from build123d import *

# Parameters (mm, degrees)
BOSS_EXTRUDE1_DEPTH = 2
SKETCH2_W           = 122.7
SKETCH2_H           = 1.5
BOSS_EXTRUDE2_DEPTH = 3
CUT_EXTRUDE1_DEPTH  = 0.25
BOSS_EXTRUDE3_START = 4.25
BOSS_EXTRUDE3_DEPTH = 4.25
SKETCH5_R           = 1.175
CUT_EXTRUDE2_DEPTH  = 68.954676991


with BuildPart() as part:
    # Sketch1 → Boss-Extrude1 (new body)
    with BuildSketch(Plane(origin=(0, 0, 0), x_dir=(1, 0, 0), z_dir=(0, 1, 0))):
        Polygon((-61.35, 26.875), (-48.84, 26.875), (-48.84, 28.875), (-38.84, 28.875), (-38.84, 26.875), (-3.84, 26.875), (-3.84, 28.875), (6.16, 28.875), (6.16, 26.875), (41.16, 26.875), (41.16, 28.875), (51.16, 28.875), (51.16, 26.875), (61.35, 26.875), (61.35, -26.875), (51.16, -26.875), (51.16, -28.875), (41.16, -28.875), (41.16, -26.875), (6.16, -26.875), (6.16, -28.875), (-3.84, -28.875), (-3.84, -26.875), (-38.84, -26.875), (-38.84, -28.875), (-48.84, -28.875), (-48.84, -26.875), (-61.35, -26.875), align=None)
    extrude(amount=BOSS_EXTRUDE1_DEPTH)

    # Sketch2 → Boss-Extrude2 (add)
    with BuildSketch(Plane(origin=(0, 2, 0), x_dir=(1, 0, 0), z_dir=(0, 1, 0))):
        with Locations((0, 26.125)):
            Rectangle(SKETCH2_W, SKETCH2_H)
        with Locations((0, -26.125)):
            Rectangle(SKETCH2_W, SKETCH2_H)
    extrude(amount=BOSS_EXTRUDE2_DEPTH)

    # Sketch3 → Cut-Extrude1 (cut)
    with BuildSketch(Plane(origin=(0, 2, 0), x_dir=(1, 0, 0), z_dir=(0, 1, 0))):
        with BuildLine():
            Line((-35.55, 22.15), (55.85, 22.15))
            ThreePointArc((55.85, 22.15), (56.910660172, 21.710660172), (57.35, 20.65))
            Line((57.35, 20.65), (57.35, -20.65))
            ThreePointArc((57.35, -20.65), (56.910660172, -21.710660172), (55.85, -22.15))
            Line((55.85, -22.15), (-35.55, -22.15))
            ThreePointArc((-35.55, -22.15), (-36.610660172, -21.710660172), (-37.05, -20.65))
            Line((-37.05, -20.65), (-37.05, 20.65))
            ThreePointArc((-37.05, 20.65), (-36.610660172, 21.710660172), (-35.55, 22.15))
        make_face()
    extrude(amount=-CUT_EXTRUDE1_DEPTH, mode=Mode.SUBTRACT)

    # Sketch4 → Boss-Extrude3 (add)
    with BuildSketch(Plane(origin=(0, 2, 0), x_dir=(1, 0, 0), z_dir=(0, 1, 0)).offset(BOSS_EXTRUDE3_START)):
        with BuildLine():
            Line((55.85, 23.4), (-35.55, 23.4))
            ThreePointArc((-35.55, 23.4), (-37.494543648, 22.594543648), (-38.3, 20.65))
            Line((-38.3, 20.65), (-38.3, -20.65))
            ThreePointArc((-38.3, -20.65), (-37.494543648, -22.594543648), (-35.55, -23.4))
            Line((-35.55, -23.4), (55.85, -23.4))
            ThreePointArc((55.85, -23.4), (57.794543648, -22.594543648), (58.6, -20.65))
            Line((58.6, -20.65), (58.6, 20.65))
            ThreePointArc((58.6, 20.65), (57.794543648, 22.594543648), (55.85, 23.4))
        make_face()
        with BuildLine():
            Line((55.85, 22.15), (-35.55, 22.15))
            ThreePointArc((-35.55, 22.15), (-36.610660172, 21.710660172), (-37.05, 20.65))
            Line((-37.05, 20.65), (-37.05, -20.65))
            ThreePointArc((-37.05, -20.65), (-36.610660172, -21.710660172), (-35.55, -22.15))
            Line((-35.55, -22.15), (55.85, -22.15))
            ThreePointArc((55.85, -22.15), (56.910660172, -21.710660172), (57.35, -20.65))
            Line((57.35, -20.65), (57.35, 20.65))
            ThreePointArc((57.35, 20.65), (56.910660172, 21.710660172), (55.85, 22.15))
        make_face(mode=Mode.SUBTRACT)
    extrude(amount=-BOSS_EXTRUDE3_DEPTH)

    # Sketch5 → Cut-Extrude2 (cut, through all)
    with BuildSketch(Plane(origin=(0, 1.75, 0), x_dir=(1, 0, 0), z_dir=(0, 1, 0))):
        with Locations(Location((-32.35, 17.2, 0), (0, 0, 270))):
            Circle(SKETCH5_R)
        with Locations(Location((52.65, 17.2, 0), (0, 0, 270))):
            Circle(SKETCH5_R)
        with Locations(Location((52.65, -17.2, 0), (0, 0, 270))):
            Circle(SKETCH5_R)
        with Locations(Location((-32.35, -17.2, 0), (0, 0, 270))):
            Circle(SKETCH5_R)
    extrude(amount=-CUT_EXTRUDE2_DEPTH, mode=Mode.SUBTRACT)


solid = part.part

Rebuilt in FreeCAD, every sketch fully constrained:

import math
import FreeCAD as App
import Part
import Sketcher


def add_polygon(sketch, points):
    """Adds a closed chain of lines whose ends are joined by coincident constraints."""
    first, n = sketch.GeometryCount, len(points)
    for a, b in zip(points, points[1:] + points[:1]):
        sketch.addGeometry(Part.LineSegment(App.Vector(*a, 0), App.Vector(*b, 0)), False)
    for i in range(n):
        sketch.addConstraint(Sketcher.Constraint("Coincident", first + i, 2, first + (i + 1) % n, 1))

doc = App.newDocument("Part")
params = doc.addObject("Spreadsheet::Sheet", "Params")
for row, (alias, value) in enumerate([
    ("sketch1_width", "10 mm"),
    ("sketch1_width2", "35 mm"),
    ("sketch1_height", "2 mm"),
    ("sketch1_width3", "12.51 mm"),
    ("sketch1_width4", "10.19 mm"),
    ("pad1_length", "2 mm"),
    ("sketch2_width", "122.7 mm"),
    ("sketch2_height", "1.5 mm"),
    ("pad2_length", "3 mm"),
    ("sketch3_radius", "1.5 mm"),
    ("sketch3_width", "91.4 mm"),
    ("sketch3_height", "41.3 mm"),
    ("pocket1_length", "0.25 mm"),
    ("sketch4_radius", "1.5 mm"),
    ("sketch4_radius2", "2.75 mm"),
    ("sketch4_width", "91.4 mm"),
    ("sketch4_height", "41.3 mm"),
    ("pad3_length", "4.25 mm"),
    ("sketch5_diameter", "2.35 mm"),
], start=1):
    params.set(f"A{row}", alias)
    params.set(f"B{row}", "=" + value)
    params.setAlias(f"B{row}", alias)

body = doc.addObject("PartDesign::Body", "Body")

# Sketch on XZ plane
sketch1 = doc.addObject("Sketcher::SketchObject", "Sketch")
body.addObject(sketch1)
sketch1.AttachmentSupport = (doc.XZ_Plane, [""])
sketch1.MapMode = "FlatFace"
add_polygon(sketch1, [(-48.84, -26.875), (-61.35, -26.875), (-61.35, 26.875), (-48.84, 26.875), (-48.84, 28.875), (-38.84, 28.875), (-38.84, 26.875), (-3.84, 26.875), (-3.84, 28.875), (6.16, 28.875), (6.16, 26.875), (41.16, 26.875), (41.16, 28.875), (51.16, 28.875), (51.16, 26.875), (61.35, 26.875), (61.35, -26.875), (51.16, -26.875), (51.16, -28.875), (41.16, -28.875), (41.16, -26.875), (6.16, -26.875), (6.16, -28.875), (-3.84, -28.875), (-3.84, -26.875), (-38.84, -26.875), (-38.84, -28.875), (-48.84, -28.875)])  # lines 0-27
sketch1.addConstraint([
    Sketcher.Constraint("Horizontal", 0),
    Sketcher.Constraint("Vertical", 1),
    Sketcher.Constraint("Horizontal", 2),
    Sketcher.Constraint("Vertical", 3),
    Sketcher.Constraint("Horizontal", 4),
    Sketcher.Constraint("Vertical", 5),
    Sketcher.Constraint("Horizontal", 6),
    Sketcher.Constraint("Vertical", 7),
    Sketcher.Constraint("Horizontal", 8),
    Sketcher.Constraint("Vertical", 9),
    Sketcher.Constraint("Horizontal", 10),
    Sketcher.Constraint("Vertical", 11),
    Sketcher.Constraint("Horizontal", 12),
    Sketcher.Constraint("Vertical", 13),
    Sketcher.Constraint("Horizontal", 14),
    Sketcher.Constraint("Vertical", 15),
    Sketcher.Constraint("Horizontal", 16),
    Sketcher.Constraint("Vertical", 17),
    Sketcher.Constraint("Horizontal", 18),
    Sketcher.Constraint("Vertical", 19),
    Sketcher.Constraint("Horizontal", 20),
    Sketcher.Constraint("Vertical", 21),
    Sketcher.Constraint("Horizontal", 22),
    Sketcher.Constraint("Vertical", 23),
    Sketcher.Constraint("Horizontal", 24),
    Sketcher.Constraint("Vertical", 25),
    Sketcher.Constraint("Horizontal", 26),
    Sketcher.Constraint("Vertical", 27),
    Sketcher.Constraint("Symmetric", 0, 2, 14, 2, -1, 1),
    Sketcher.Constraint("Symmetric", 13, 2, 16, 2, -1),
    Sketcher.Constraint("Symmetric", 11, 2, 18, 2, -1),
    Sketcher.Constraint("Symmetric", 9, 2, 20, 2, -1),
    Sketcher.Constraint("Symmetric", 7, 2, 22, 2, -1),
    Sketcher.Constraint("Symmetric", 5, 2, 24, 2, -1),
    Sketcher.Constraint("Symmetric", 3, 2, 26, 2, -1),
    Sketcher.Constraint("Horizontal", 2, 2, 5, 2),
    Sketcher.Constraint("Horizontal", 4, 2, 7, 2),
    Sketcher.Constraint("Horizontal", 6, 2, 9, 2),
    Sketcher.Constraint("Horizontal", 8, 2, 11, 2),
    Sketcher.Constraint("Horizontal", 10, 2, 13, 2),
    Sketcher.Constraint("Equal", 4, 8),
    Sketcher.Constraint("Equal", 6, 10),
    Sketcher.Constraint("Equal", 8, 12),
    Sketcher.Constraint("DistanceX", 4, 1, 4, 2, 10.0),
    Sketcher.Constraint("DistanceX", 6, 1, 6, 2, 35.0),
    Sketcher.Constraint("DistanceY", 3, 1, 3, 2, 2.0),
    Sketcher.Constraint("DistanceX", 0, 2, 0, 1, 12.51),
    Sketcher.Constraint("DistanceX", 14, 1, 14, 2, 10.19),
    Sketcher.Constraint("DistanceY", 1, 1, 1, 2, 53.75),
])
sketch1.setExpression("Constraints[71]", "Params.sketch1_width")
sketch1.setExpression("Constraints[72]", "Params.sketch1_width2")
sketch1.setExpression("Constraints[73]", "Params.sketch1_height")
sketch1.setExpression("Constraints[74]", "Params.sketch1_width3")
sketch1.setExpression("Constraints[75]", "Params.sketch1_width4")
pad1 = doc.addObject("PartDesign::Pad", "Pad")
body.addObject(pad1)
pad1.Profile = sketch1
pad1.setExpression("Length", "Params.pad1_length")
pad1.Reversed = True

# Sketch on XZ plane
sketch2 = doc.addObject("Sketcher::SketchObject", "Sketch001")
body.addObject(sketch2)
sketch2.AttachmentSupport = (doc.XZ_Plane, [""])
sketch2.MapMode = "FlatFace"
sketch2.AttachmentOffset = App.Placement(App.Vector(0, 0, -2), App.Rotation())
add_polygon(sketch2, [(-61.35, -26.875), (-61.35, -25.375), (61.35, -25.375), (61.35, -26.875)])  # lines 0-3
add_polygon(sketch2, [(-61.35, 25.375), (-61.35, 26.875), (61.35, 26.875), (61.35, 25.375)])  # lines 4-7
sketch2.addConstraint([
    Sketcher.Constraint("Vertical", 0),
    Sketcher.Constraint("Horizontal", 1),
    Sketcher.Constraint("Vertical", 2),
    Sketcher.Constraint("Horizontal", 3),
    Sketcher.Constraint("Vertical", 4),
    Sketcher.Constraint("Horizontal", 5),
    Sketcher.Constraint("Vertical", 6),
    Sketcher.Constraint("Horizontal", 7),
    Sketcher.Constraint("Symmetric", 2, 2, 4, 2, -1, 1),
    Sketcher.Constraint("Symmetric", 0, 2, 6, 2, -1, 1),
    Sketcher.Constraint("Vertical", 3, 2, 4, 2),
    Sketcher.Constraint("DistanceX", 1, 1, 1, 2, 122.7),
    Sketcher.Constraint("DistanceY", 0, 1, 0, 2, 1.5),
    Sketcher.Constraint("DistanceY", 0, 2, 4, 2, 52.25),
])
sketch2.setExpression("Constraints[19]", "Params.sketch2_width")
sketch2.setExpression("Constraints[20]", "Params.sketch2_height")
pad2 = doc.addObject("PartDesign::Pad", "Pad001")
body.addObject(pad2)
pad2.Profile = sketch2
pad2.setExpression("Length", "Params.pad2_length")
pad2.Reversed = True

# Sketch on XZ plane
sketch3 = doc.addObject("Sketcher::SketchObject", "Sketch002")
body.addObject(sketch3)
sketch3.AttachmentSupport = (doc.XZ_Plane, [""])
sketch3.MapMode = "FlatFace"
sketch3.AttachmentOffset = App.Placement(App.Vector(0, 0, -2), App.Rotation())
sketch3.addGeometry([
    Part.LineSegment(App.Vector(55.85, -22.15, 0), App.Vector(-35.55, -22.15, 0)),  # 0
    Part.ArcOfCircle(Part.Circle(App.Vector(-35.55, -20.65, 0), App.Vector(0, 0, 1), 1.5), math.radians(180), math.radians(270)),  # 1
    Part.LineSegment(App.Vector(-37.05, -20.65, 0), App.Vector(-37.05, 20.65, 0)),  # 2
    Part.ArcOfCircle(Part.Circle(App.Vector(-35.55, 20.65, 0), App.Vector(0, 0, 1), 1.5), math.radians(90), math.radians(180)),  # 3
    Part.LineSegment(App.Vector(-35.55, 22.15, 0), App.Vector(55.85, 22.15, 0)),  # 4
    Part.ArcOfCircle(Part.Circle(App.Vector(55.85, 20.65, 0), App.Vector(0, 0, 1), 1.5), math.radians(0), math.radians(90)),  # 5
    Part.LineSegment(App.Vector(57.35, 20.65, 0), App.Vector(57.35, -20.65, 0)),  # 6
    Part.ArcOfCircle(Part.Circle(App.Vector(55.85, -20.65, 0), App.Vector(0, 0, 1), 1.5), math.radians(-90), math.radians(0)),  # 7
], False)
sketch3.addConstraint([
    Sketcher.Constraint("Tangent", 0, 2, 1, 2),
    Sketcher.Constraint("Tangent", 1, 1, 2, 1),
    Sketcher.Constraint("Tangent", 2, 2, 3, 2),
    Sketcher.Constraint("Tangent", 3, 1, 4, 1),
    Sketcher.Constraint("Tangent", 4, 2, 5, 2),
    Sketcher.Constraint("Tangent", 5, 1, 6, 1),
    Sketcher.Constraint("Tangent", 6, 2, 7, 2),
    Sketcher.Constraint("Tangent", 7, 1, 0, 1),
    Sketcher.Constraint("Horizontal", 0),
    Sketcher.Constraint("Vertical", 2),
    Sketcher.Constraint("Horizontal", 4),
    Sketcher.Constraint("Vertical", 6),
    Sketcher.Constraint("Equal", 1, 3),
    Sketcher.Constraint("Equal", 3, 5),
    Sketcher.Constraint("Equal", 5, 7),
    Sketcher.Constraint("Radius", 1, 1.5),
    Sketcher.Constraint("DistanceX", 0, 2, 0, 1, 91.4),
    Sketcher.Constraint("DistanceY", 2, 1, 2, 2, 41.3),
    Sketcher.Constraint("DistanceX", 1, 3, -1, 1, 35.55),
    Sketcher.Constraint("DistanceY", 1, 3, -1, 1, 20.65),
])
sketch3.setExpression("Constraints[15]", "Params.sketch3_radius")
sketch3.setExpression("Constraints[16]", "Params.sketch3_width")
sketch3.setExpression("Constraints[17]", "Params.sketch3_height")
pocket1 = doc.addObject("PartDesign::Pocket", "Pocket")
body.addObject(pocket1)
pocket1.Profile = sketch3
pocket1.setExpression("Length", "Params.pocket1_length")
pocket1.Reversed = True

# Sketch on XZ plane
sketch4 = doc.addObject("Sketcher::SketchObject", "Sketch003")
body.addObject(sketch4)
sketch4.AttachmentSupport = (doc.XZ_Plane, [""])
sketch4.MapMode = "FlatFace"
sketch4.AttachmentOffset = App.Placement(App.Vector(0, 0, -6.25), App.Rotation())
sketch4.addGeometry([
    Part.LineSegment(App.Vector(55.85, -23.4, 0), App.Vector(-35.55, -23.4, 0)),  # 0
    Part.ArcOfCircle(Part.Circle(App.Vector(-35.55, -20.65, 0), App.Vector(0, 0, 1), 2.75), math.radians(-180), math.radians(-90)),  # 1
    Part.LineSegment(App.Vector(-38.3, -20.65, 0), App.Vector(-38.3, 20.65, 0)),  # 2
    Part.ArcOfCircle(Part.Circle(App.Vector(-35.55, 20.65, 0), App.Vector(0, 0, 1), 2.75), math.radians(90), math.radians(180)),  # 3
    Part.LineSegment(App.Vector(-35.55, 23.4, 0), App.Vector(55.85, 23.4, 0)),  # 4
    Part.ArcOfCircle(Part.Circle(App.Vector(55.85, 20.65, 0), App.Vector(0, 0, 1), 2.75), math.radians(0), math.radians(90)),  # 5
    Part.LineSegment(App.Vector(58.6, 20.65, 0), App.Vector(58.6, -20.65, 0)),  # 6
    Part.ArcOfCircle(Part.Circle(App.Vector(55.85, -20.65, 0), App.Vector(0, 0, 1), 2.75), math.radians(-90), math.radians(0)),  # 7
    Part.LineSegment(App.Vector(-35.55, -22.15, 0), App.Vector(55.85, -22.15, 0)),  # 8
    Part.ArcOfCircle(Part.Circle(App.Vector(55.85, -20.65, 0), App.Vector(0, 0, 1), 1.5), math.radians(-90), math.radians(0)),  # 9
    Part.LineSegment(App.Vector(57.35, -20.65, 0), App.Vector(57.35, 20.65, 0)),  # 10
    Part.ArcOfCircle(Part.Circle(App.Vector(55.85, 20.65, 0), App.Vector(0, 0, 1), 1.5), math.radians(0), math.radians(90)),  # 11
    Part.LineSegment(App.Vector(55.85, 22.15, 0), App.Vector(-35.55, 22.15, 0)),  # 12
    Part.ArcOfCircle(Part.Circle(App.Vector(-35.55, 20.65, 0), App.Vector(0, 0, 1), 1.5), math.radians(90), math.radians(180)),  # 13
    Part.LineSegment(App.Vector(-37.05, 20.65, 0), App.Vector(-37.05, -20.65, 0)),  # 14
    Part.ArcOfCircle(Part.Circle(App.Vector(-35.55, -20.65, 0), App.Vector(0, 0, 1), 1.5), math.radians(180), math.radians(270)),  # 15
], False)
sketch4.addConstraint([
    Sketcher.Constraint("Tangent", 0, 2, 1, 2),
    Sketcher.Constraint("Tangent", 1, 1, 2, 1),
    Sketcher.Constraint("Tangent", 2, 2, 3, 2),
    Sketcher.Constraint("Tangent", 3, 1, 4, 1),
    Sketcher.Constraint("Tangent", 4, 2, 5, 2),
    Sketcher.Constraint("Tangent", 5, 1, 6, 1),
    Sketcher.Constraint("Tangent", 6, 2, 7, 2),
    Sketcher.Constraint("Tangent", 7, 1, 0, 1),
    Sketcher.Constraint("Tangent", 8, 2, 9, 1),
    Sketcher.Constraint("Tangent", 9, 2, 10, 1),
    Sketcher.Constraint("Tangent", 10, 2, 11, 1),
    Sketcher.Constraint("Tangent", 11, 2, 12, 1),
    Sketcher.Constraint("Tangent", 12, 2, 13, 1),
    Sketcher.Constraint("Tangent", 13, 2, 14, 1),
    Sketcher.Constraint("Tangent", 14, 2, 15, 1),
    Sketcher.Constraint("Tangent", 15, 2, 8, 1),
    Sketcher.Constraint("Horizontal", 0),
    Sketcher.Constraint("Vertical", 2),
    Sketcher.Constraint("Horizontal", 4),
    Sketcher.Constraint("Vertical", 6),
    Sketcher.Constraint("Horizontal", 8),
    Sketcher.Constraint("Vertical", 10),
    Sketcher.Constraint("Horizontal", 12),
    Sketcher.Constraint("Vertical", 14),
    Sketcher.Constraint("Coincident", 9, 3, 7, 3),
    Sketcher.Constraint("Coincident", 11, 3, 5, 3),
    Sketcher.Constraint("Coincident", 13, 3, 3, 3),
    Sketcher.Constraint("Equal", 1, 3),
    Sketcher.Constraint("Equal", 3, 5),
    Sketcher.Constraint("Equal", 5, 7),
    Sketcher.Constraint("Equal", 13, 15),
    Sketcher.Constraint("Radius", 9, 1.5),
    Sketcher.Constraint("Radius", 1, 2.75),
    Sketcher.Constraint("DistanceX", 0, 2, 0, 1, 91.4),
    Sketcher.Constraint("DistanceY", 2, 1, 2, 2, 41.3),
    Sketcher.Constraint("DistanceY", 0, 2, -1, 1, 23.4),
    Sketcher.Constraint("DistanceX", 1, 1, -1, 1, 38.3),
])
sketch4.setExpression("Constraints[31]", "Params.sketch4_radius")
sketch4.setExpression("Constraints[32]", "Params.sketch4_radius2")
sketch4.setExpression("Constraints[33]", "Params.sketch4_width")
sketch4.setExpression("Constraints[34]", "Params.sketch4_height")
pad3 = doc.addObject("PartDesign::Pad", "Pad002")
body.addObject(pad3)
pad3.Profile = sketch4
pad3.setExpression("Length", "Params.pad3_length")

# Sketch on XZ plane
sketch5 = doc.addObject("Sketcher::SketchObject", "Sketch004")
body.addObject(sketch5)
sketch5.AttachmentSupport = (doc.XZ_Plane, [""])
sketch5.MapMode = "FlatFace"
sketch5.AttachmentOffset = App.Placement(App.Vector(0, 0, -1.75), App.Rotation())
sketch5.addGeometry([
    Part.Circle(App.Vector(-32.35, -17.2, 0), App.Vector(0, 0, 1), 1.175),
    Part.Circle(App.Vector(52.65, -17.2, 0), App.Vector(0, 0, 1), 1.175),
    Part.Circle(App.Vector(52.65, 17.2, 0), App.Vector(0, 0, 1), 1.175),
    Part.Circle(App.Vector(-32.35, 17.2, 0), App.Vector(0, 0, 1), 1.175),
], False)
sketch5.addConstraint([
    Sketcher.Constraint("Equal", 0, 1),
    Sketcher.Constraint("Equal", 1, 2),
    Sketcher.Constraint("Equal", 2, 3),
    Sketcher.Constraint("Symmetric", 1, 3, 2, 3, -1),
    Sketcher.Constraint("Symmetric", 0, 3, 3, 3, -1),
    Sketcher.Constraint("Horizontal", 0, 3, 1, 3),
    Sketcher.Constraint("Diameter", 0, 2.35),
    Sketcher.Constraint("DistanceX", 0, 3, 1, 3, 85.0),
    Sketcher.Constraint("DistanceY", 0, 3, -1, 1, 17.2),
    Sketcher.Constraint("DistanceX", 0, 3, -1, 1, 32.35),
])
sketch5.setExpression("Constraints[6]", "Params.sketch5_diameter")
pocket2 = doc.addObject("PartDesign::Pocket", "Pocket001")
body.addObject(pocket2)
pocket2.Profile = sketch5
pocket2.Type = "ThroughAll"
pocket2.Reversed = True

doc.recompute()
